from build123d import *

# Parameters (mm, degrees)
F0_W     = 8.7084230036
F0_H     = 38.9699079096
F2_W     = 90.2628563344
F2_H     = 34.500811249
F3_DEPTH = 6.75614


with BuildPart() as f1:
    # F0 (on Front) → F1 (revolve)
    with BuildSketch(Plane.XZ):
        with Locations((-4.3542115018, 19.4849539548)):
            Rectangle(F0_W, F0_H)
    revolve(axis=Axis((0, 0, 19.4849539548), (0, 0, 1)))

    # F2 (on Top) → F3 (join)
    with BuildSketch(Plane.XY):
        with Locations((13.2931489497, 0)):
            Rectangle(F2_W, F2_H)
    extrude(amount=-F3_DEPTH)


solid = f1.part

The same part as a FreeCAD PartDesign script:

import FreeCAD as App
import Part
import Sketcher
from FreeCAD import Vector
Q = App.Units.Quantity

doc = App.newDocument("Part")
body = doc.addObject("PartDesign::Body", "Body")

# Sketch on XZ plane
sketch1 = doc.addObject("Sketcher::SketchObject", "Sketch")
body.addObject(sketch1)
sketch1.AttachmentSupport = (doc.XZ_Plane, [""])
sketch1.MapMode = "FlatFace"
sketch1.addGeometry([
    Part.LineSegment(Vector(-8.708423, 38.969908, 0), Vector(-8.708423, 0, 0)),
    Part.LineSegment(Vector(-8.708423, 0, 0), Vector(0, 0, 0)),
    Part.LineSegment(Vector(0, 0, 0), Vector(0, 38.969908, 0)),
    Part.LineSegment(Vector(0, 38.969908, 0), Vector(-8.708423, 38.969908, 0)),
], False)
sketch1.addConstraint([
    Sketcher.Constraint("Coincident", 0, 2, 1, 1),
    Sketcher.Constraint("Coincident", 1, 2, 2, 1),
    Sketcher.Constraint("Coincident", 2, 2, 3, 1),
    Sketcher.Constraint("Coincident", 3, 2, 0, 1),
    Sketcher.Constraint("Vertical", 0),
    Sketcher.Constraint("Horizontal", 1),
    Sketcher.Constraint("Vertical", 2),
    Sketcher.Constraint("Horizontal", 3),
    Sketcher.Constraint("Coincident", 1, 2, -1, 1),
    Sketcher.Constraint("DistanceX", 1, 1, 1, 2, Q("8.708423 mm")),
    Sketcher.Constraint("DistanceY", 0, 2, 0, 1, Q("38.969908 mm")),
])
revolution = doc.addObject("PartDesign::Revolution", "Revolution")
body.addObject(revolution)
revolution.Profile = sketch1
revolution.ReferenceAxis = (sketch1, ["V_Axis"])
revolution.Angle = 360

# Sketch on XY plane
sketch2 = doc.addObject("Sketcher::SketchObject", "Sketch001")
body.addObject(sketch2)
sketch2.AttachmentSupport = (doc.XY_Plane, [""])
sketch2.MapMode = "FlatFace"
sketch2.addGeometry([
    Part.LineSegment(Vector(-31.838279, 17.250406, 0), Vector(-31.838279, -17.250406, 0)),
    Part.LineSegment(Vector(-31.838279, -17.250406, 0), Vector(58.424577, -17.250406, 0)),
    Part.LineSegment(Vector(58.424577, -17.250406, 0), Vector(58.424577, 17.250406, 0)),
    Part.LineSegment(Vector(58.424577, 17.250406, 0), Vector(-31.838279, 17.250406, 0)),
], False)
sketch2.addConstraint([
    Sketcher.Constraint("Coincident", 0, 2, 1, 1),
    Sketcher.Constraint("Coincident", 1, 2, 2, 1),
    Sketcher.Constraint("Coincident", 2, 2, 3, 1),
    Sketcher.Constraint("Coincident", 3, 2, 0, 1),
    Sketcher.Constraint("Vertical", 0),
    Sketcher.Constraint("Horizontal", 1),
    Sketcher.Constraint("Vertical", 2),
    Sketcher.Constraint("Horizontal", 3),
    Sketcher.Constraint("DistanceY", 0, 2, 0, 1, Q("34.500811 mm")),
    Sketcher.Constraint("DistanceX", 1, 1, 1, 2, Q("90.262856 mm")),
    Sketcher.Constraint("DistanceX", 0, 2, -1, 1, Q("31.838279 mm")),
    Sketcher.Constraint("DistanceY", 0, 2, -1, 1, Q("17.250406 mm")),
])
pad1 = doc.addObject("PartDesign::Pad", "Pad")
body.addObject(pad1)
pad1.Profile = sketch2
pad1.Length = 6.75614
pad1.Reversed = True

doc.recompute()
